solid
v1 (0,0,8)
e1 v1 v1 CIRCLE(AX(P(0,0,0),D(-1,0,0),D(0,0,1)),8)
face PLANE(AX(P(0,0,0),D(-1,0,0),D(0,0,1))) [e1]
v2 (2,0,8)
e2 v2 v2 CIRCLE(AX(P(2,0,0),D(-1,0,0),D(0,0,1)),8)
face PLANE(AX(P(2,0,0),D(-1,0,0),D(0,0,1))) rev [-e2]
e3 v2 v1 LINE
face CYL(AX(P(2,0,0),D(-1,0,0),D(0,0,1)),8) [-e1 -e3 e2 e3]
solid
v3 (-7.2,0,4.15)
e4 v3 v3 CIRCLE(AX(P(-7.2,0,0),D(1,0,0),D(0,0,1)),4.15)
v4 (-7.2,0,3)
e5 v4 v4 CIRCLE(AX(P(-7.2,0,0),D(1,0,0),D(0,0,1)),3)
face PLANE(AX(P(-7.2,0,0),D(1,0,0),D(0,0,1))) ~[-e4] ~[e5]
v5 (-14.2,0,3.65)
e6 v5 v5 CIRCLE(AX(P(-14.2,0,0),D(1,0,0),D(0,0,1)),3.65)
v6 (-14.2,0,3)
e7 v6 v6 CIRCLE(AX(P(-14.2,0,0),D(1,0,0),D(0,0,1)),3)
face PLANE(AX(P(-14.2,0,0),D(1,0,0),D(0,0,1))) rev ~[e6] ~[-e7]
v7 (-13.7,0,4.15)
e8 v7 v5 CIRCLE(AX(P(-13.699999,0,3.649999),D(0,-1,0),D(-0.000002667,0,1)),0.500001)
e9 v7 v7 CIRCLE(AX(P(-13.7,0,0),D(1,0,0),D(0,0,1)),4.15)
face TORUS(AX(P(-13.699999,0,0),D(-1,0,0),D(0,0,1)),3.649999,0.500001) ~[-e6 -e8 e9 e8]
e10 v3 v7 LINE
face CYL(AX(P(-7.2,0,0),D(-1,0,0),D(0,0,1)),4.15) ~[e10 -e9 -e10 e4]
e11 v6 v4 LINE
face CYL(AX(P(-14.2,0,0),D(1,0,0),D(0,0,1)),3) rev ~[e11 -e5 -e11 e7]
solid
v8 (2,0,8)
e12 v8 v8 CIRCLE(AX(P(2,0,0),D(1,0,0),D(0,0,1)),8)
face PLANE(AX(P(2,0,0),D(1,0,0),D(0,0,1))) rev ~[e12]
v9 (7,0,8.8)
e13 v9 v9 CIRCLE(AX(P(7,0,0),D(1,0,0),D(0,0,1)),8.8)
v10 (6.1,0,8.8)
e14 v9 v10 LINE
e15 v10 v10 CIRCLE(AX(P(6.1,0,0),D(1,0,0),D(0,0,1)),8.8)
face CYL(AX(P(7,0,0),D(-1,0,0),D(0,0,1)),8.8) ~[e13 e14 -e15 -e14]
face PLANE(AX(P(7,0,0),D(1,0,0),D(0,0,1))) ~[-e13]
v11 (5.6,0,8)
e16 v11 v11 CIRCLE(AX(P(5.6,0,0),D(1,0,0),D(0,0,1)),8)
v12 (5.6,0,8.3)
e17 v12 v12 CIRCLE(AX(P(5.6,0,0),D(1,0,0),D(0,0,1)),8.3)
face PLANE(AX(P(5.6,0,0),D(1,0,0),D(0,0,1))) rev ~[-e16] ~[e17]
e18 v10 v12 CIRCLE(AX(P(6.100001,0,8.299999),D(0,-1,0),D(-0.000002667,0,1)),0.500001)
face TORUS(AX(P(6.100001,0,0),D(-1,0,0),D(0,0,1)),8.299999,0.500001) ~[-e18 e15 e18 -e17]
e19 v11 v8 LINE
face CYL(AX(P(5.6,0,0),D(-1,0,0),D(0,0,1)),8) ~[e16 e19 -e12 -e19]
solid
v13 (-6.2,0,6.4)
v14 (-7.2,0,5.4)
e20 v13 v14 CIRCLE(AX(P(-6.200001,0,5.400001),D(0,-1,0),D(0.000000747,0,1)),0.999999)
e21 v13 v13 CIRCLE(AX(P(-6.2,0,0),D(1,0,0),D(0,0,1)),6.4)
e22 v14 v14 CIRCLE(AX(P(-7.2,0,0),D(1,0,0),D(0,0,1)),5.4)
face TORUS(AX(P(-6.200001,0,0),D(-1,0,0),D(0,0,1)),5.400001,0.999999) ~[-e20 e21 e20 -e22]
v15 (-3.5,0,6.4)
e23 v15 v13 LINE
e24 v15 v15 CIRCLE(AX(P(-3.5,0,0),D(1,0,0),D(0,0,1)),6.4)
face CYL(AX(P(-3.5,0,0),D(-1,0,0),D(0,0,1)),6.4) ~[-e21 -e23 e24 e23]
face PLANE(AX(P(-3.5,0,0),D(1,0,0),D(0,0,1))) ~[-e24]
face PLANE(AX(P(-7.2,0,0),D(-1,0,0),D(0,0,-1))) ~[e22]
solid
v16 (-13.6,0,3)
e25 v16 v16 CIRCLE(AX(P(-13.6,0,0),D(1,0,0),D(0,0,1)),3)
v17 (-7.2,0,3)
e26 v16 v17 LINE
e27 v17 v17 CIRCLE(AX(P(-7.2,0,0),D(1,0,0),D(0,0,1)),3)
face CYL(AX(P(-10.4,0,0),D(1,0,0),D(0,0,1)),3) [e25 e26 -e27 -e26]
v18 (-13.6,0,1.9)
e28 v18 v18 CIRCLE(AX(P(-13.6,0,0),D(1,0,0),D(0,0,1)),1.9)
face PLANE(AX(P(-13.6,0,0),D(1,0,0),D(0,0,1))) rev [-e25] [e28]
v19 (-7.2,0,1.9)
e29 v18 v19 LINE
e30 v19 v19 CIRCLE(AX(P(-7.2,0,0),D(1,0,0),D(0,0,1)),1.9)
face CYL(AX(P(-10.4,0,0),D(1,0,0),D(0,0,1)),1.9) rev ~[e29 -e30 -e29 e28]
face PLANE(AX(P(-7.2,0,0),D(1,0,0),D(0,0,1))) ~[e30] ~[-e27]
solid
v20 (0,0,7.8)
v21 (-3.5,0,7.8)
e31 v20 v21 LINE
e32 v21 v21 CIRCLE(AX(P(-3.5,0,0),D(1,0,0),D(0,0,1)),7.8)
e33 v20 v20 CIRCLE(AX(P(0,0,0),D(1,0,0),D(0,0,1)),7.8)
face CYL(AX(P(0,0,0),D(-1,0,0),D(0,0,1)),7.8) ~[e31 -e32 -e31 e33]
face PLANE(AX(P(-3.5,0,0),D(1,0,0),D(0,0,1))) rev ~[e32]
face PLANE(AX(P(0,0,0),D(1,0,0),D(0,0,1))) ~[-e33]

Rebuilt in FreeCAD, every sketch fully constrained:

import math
import FreeCAD as App
import Part
import Sketcher
Q = App.Units.Quantity

doc = App.newDocument("Part")
body = doc.addObject("PartDesign::Body", "Body")

# Sketch on XZ plane
sketch1 = body.newObject("Sketcher::SketchObject", "Sketch")
sketch1.AttachmentSupport = (doc.getObject("XZ_Plane"), [""])
sketch1.MapMode = "FlatFace"
sketch1.addGeometry([
    Part.LineSegment(App.Vector(-7.2, 3, 0), App.Vector(-7.2, 4.2, 0)),  # 0
    Part.LineSegment(App.Vector(-7.2, 4.2, 0), App.Vector(-13.7, 4.2, 0)),  # 1
    Part.ArcOfCircle(Part.Circle(App.Vector(-13.7, 3.6, 0), App.Vector(0, 0, 1), 0.5), math.radians(90), math.radians(180)),  # 2
    Part.LineSegment(App.Vector(-14.2, 3.6, 0), App.Vector(-14.2, 3, 0)),  # 3
    Part.LineSegment(App.Vector(-14.2, 3, 0), App.Vector(-7.2, 3, 0)),  # 4
], False)
sketch1.addConstraint([
    Sketcher.Constraint("Coincident", 0, 2, 1, 1),
    Sketcher.Constraint("Coincident", 1, 2, 2, 1),
    Sketcher.Constraint("Coincident", 2, 2, 3, 1),
    Sketcher.Constraint("Coincident", 3, 2, 4, 1),
    Sketcher.Constraint("Coincident", 4, 2, 0, 1),
    Sketcher.Constraint("Vertical", 0),
    Sketcher.Constraint("Horizontal", 1),
    Sketcher.Constraint("Vertical", 3),
    Sketcher.Constraint("Horizontal", 4),
    Sketcher.Constraint("Vertical", 2, 3, 1, 2),
    Sketcher.Constraint("Radius", 2, Q("0.500001 mm")),
    Sketcher.Constraint("DistanceX", 4, 1, 4, 2, Q("7 mm")),
    Sketcher.Constraint("DistanceY", -1, 1, 3, 2, Q("3 mm")),
    Sketcher.Constraint("DistanceY", 0, 1, 0, 2, Q("1.15 mm")),
    Sketcher.Constraint("DistanceY", 3, 2, 3, 1, Q("0.65 mm")),
    Sketcher.Constraint("DistanceX", 2, 3, -1, 1, Q("13.699999 mm")),
])
revolution = body.newObject("PartDesign::Revolution", "Revolution")
revolution.Profile = sketch1
revolution.ReferenceAxis = (sketch1, ["H_Axis"])
revolution.Angle = 360
body2 = doc.addObject("PartDesign::Body", "Body001")

# Sketch on XZ plane
sketch2 = body2.newObject("Sketcher::SketchObject", "Sketch001")
sketch2.AttachmentSupport = (doc.getObject("XZ_Plane001"), [""])
sketch2.MapMode = "FlatFace"
sketch2.addGeometry([
    Part.LineSegment(App.Vector(-3.5, 0, 0), App.Vector(-3.5, 6.4, 0)),  # 0
    Part.LineSegment(App.Vector(-3.5, 6.4, 0), App.Vector(-6.2, 6.4, 0)),  # 1
    Part.ArcOfCircle(Part.Circle(App.Vector(-6.2, 5.4, 0), App.Vector(0, 0, 1), 1), math.radians(90), math.radians(180)),  # 2
    Part.LineSegment(App.Vector(-7.2, 5.4, 0), App.Vector(-7.2, 0, 0)),  # 3
    Part.LineSegment(App.Vector(-7.2, 0, 0), App.Vector(-3.5, 0, 0)),  # 4
], False)
sketch2.addConstraint([
    Sketcher.Constraint("Coincident", 0, 2, 1, 1),
    Sketcher.Constraint("Tangent", 1, 2, 2, 1),
    Sketcher.Constraint("Tangent", 2, 2, 3, 1),
    Sketcher.Constraint("Coincident", 3, 2, 4, 1),
    Sketcher.Constraint("Coincident", 4, 2, 0, 1),
    Sketcher.Constraint("Vertical", 0),
    Sketcher.Constraint("Horizontal", 1),
    Sketcher.Constraint("Vertical", 3),
    Sketcher.Constraint("Horizontal", 4),
    Sketcher.Constraint("PointOnObject", 3, 2, -1),
    Sketcher.Constraint("Radius", 2, Q("0.999999 mm")),
    Sketcher.Constraint("DistanceX", 1, 2, 1, 1, Q("2.7 mm")),
    Sketcher.Constraint("DistanceY", 0, 1, 0, 2, Q("6.4 mm")),
    Sketcher.Constraint("DistanceX", 2, 3, -1, 1, Q("6.200001 mm")),
])
revolution2 = body2.newObject("PartDesign::Revolution", "Revolution001")
revolution2.Profile = sketch2
revolution2.ReferenceAxis = (sketch2, ["H_Axis"])
revolution2.Angle = 360
body3 = doc.addObject("PartDesign::Body", "Body002")

# Sketch on XZ plane
sketch3 = body3.newObject("Sketcher::SketchObject", "Sketch002")
sketch3.AttachmentSupport = (doc.getObject("XZ_Plane002"), [""])
sketch3.MapMode = "FlatFace"
sketch3.addGeometry([
    Part.LineSegment(App.Vector(0, 0, 0), App.Vector(0, 7.8, 0)),
    Part.LineSegment(App.Vector(0, 7.8, 0), App.Vector(-3.5, 7.8, 0)),
    Part.LineSegment(App.Vector(-3.5, 7.8, 0), App.Vector(-3.5, 0, 0)),
    Part.LineSegment(App.Vector(-3.5, 0, 0), App.Vector(0, 0, 0)),
], False)
sketch3.addConstraint([
    Sketcher.Constraint("Coincident", 0, 2, 1, 1),
    Sketcher.Constraint("Coincident", 1, 2, 2, 1),
    Sketcher.Constraint("Coincident", 2, 2, 3, 1),
    Sketcher.Constraint("Coincident", 3, 2, 0, 1),
    Sketcher.Constraint("Vertical", 0),
    Sketcher.Constraint("Horizontal", 1),
    Sketcher.Constraint("Vertical", 2),
    Sketcher.Constraint("Horizontal", 3),
    Sketcher.Constraint("Coincident", 3, 2, -1, 1),
    Sketcher.Constraint("DistanceX", 1, 2, 1, 1, Q("3.5 mm")),
    Sketcher.Constraint("DistanceY", 0, 1, 0, 2, Q("7.8 mm")),
])
revolution3 = body3.newObject("PartDesign::Revolution", "Revolution002")
revolution3.Profile = sketch3
revolution3.ReferenceAxis = (sketch3, ["H_Axis"])
revolution3.Angle = 360
body4 = doc.addObject("PartDesign::Body", "Body003")

# Sketch on XZ plane
sketch4 = body4.newObject("Sketcher::SketchObject", "Sketch003")
sketch4.AttachmentSupport = (doc.getObject("XZ_Plane003"), [""])
sketch4.MapMode = "FlatFace"
sketch4.addGeometry([
    Part.LineSegment(App.Vector(0, 8, 0), App.Vector(0, 0, 0)),
    Part.LineSegment(App.Vector(0, 0, 0), App.Vector(2, 0, 0)),
    Part.LineSegment(App.Vector(2, 0, 0), App.Vector(2, 8, 0)),
    Part.LineSegment(App.Vector(2, 8, 0), App.Vector(0, 8, 0)),
], False)
sketch4.addConstraint([
    Sketcher.Constraint("Coincident", 0, 2, 1, 1),
    Sketcher.Constraint("Coincident", 1, 2, 2, 1),
    Sketcher.Constraint("Coincident", 2, 2, 3, 1),
    Sketcher.Constraint("Coincident", 3, 2, 0, 1),
    Sketcher.Constraint("Vertical", 0),
    Sketcher.Constraint("Horizontal", 1),
    Sketcher.Constraint("Vertical", 2),
    Sketcher.Constraint("Horizontal", 3),
    Sketcher.Constraint("Coincident", 0, 2, -1, 1),
    Sketcher.Constraint("DistanceX", 1, 1, 1, 2, Q("2 mm")),
    Sketcher.Constraint("DistanceY", 0, 2, 0, 1, Q("8 mm")),
])
revolution4 = body4.newObject("PartDesign::Revolution", "Revolution003")
revolution4.Profile = sketch4
revolution4.ReferenceAxis = (sketch4, ["H_Axis"])
revolution4.Angle = 360
body5 = doc.addObject("PartDesign::Body", "Body004")

# Sketch on XZ plane
sketch5 = body5.newObject("Sketcher::SketchObject", "Sketch004")
sketch5.AttachmentSupport = (doc.getObject("XZ_Plane004"), [""])
sketch5.MapMode = "FlatFace"
sketch5.addGeometry([
    Part.LineSegment(App.Vector(-13.6, 3, 0), App.Vector(-13.6, 1.9, 0)),
    Part.LineSegment(App.Vector(-13.6, 1.9, 0), App.Vector(-7.2, 1.9, 0)),
    Part.LineSegment(App.Vector(-7.2, 1.9, 0), App.Vector(-7.2, 3, 0)),
    Part.LineSegment(App.Vector(-7.2, 3, 0), App.Vector(-13.6, 3, 0)),
], False)
sketch5.addConstraint([
    Sketcher.Constraint("Coincident", 0, 2, 1, 1),
    Sketcher.Constraint("Coincident", 1, 2, 2, 1),
    Sketcher.Constraint("Coincident", 2, 2, 3, 1),
    Sketcher.Constraint("Coincident", 3, 2, 0, 1),
    Sketcher.Constraint("Vertical", 0),
    Sketcher.Constraint("Horizontal", 1),
    Sketcher.Constraint("Vertical", 2),
    Sketcher.Constraint("Horizontal", 3),
    Sketcher.Constraint("DistanceX", 1, 1, 1, 2, Q("6.4 mm")),
    Sketcher.Constraint("DistanceY", 0, 2, 0, 1, Q("1.1 mm")),
    Sketcher.Constraint("DistanceY", -1, 1, 2, 2, Q("3 mm")),
    Sketcher.Constraint("DistanceX", 0, 2, -1, 1, Q("13.6 mm")),
])
revolution5 = body5.newObject("PartDesign::Revolution", "Revolution004")
revolution5.Profile = sketch5
revolution5.ReferenceAxis = (sketch5, ["H_Axis"])
revolution5.Angle = 360
body6 = doc.addObject("PartDesign::Body", "Body005")

# Sketch on XZ plane
sketch6 = body6.newObject("Sketcher::SketchObject", "Sketch005")
sketch6.AttachmentSupport = (doc.getObject("XZ_Plane005"), [""])
sketch6.MapMode = "FlatFace"
sketch6.addGeometry([
    Part.LineSegment(App.Vector(2, 8, 0), App.Vector(2, 0, 0)),  # 0
    Part.LineSegment(App.Vector(2, 0, 0), App.Vector(7, 0, 0)),  # 1
    Part.LineSegment(App.Vector(7, 0, 0), App.Vector(7, 8.8, 0)),  # 2
    Part.LineSegment(App.Vector(7, 8.8, 0), App.Vector(6.1, 8.8, 0)),  # 3
    Part.ArcOfCircle(Part.Circle(App.Vector(6.1, 8.3, 0), App.Vector(0, 0, 1), 0.5), math.radians(90), math.radians(180)),  # 4
    Part.LineSegment(App.Vector(5.6, 8.3, 0), App.Vector(5.6, 8, 0)),  # 5
    Part.LineSegment(App.Vector(5.6, 8, 0), App.Vector(2, 8, 0)),  # 6
], False)
sketch6.addConstraint([
    Sketcher.Constraint("Coincident", 0, 2, 1, 1),
    Sketcher.Constraint("Coincident", 1, 2, 2, 1),
    Sketcher.Constraint("Coincident", 2, 2, 3, 1),
    Sketcher.Constraint("Coincident", 3, 2, 4, 1),
    Sketcher.Constraint("Coincident", 4, 2, 5, 1),
    Sketcher.Constraint("Coincident", 5, 2, 6, 1),
    Sketcher.Constraint("Coincident", 6, 2, 0, 1),
    Sketcher.Constraint("Vertical", 0),
    Sketcher.Constraint("Horizontal", 1),
    Sketcher.Constraint("Vertical", 2),
    Sketcher.Constraint("Horizontal", 3),
    Sketcher.Constraint("Vertical", 5),
    Sketcher.Constraint("Horizontal", 6),
    Sketcher.Constraint("PointOnObject", 0, 2, -1),
    Sketcher.Constraint("Vertical", 4, 3, 3, 2),
    Sketcher.Constraint("Radius", 4, Q("0.500001 mm")),
    Sketcher.Constraint("DistanceX", 1, 1, 1, 2, Q("5 mm")),
    Sketcher.Constraint("DistanceY", 0, 2, 0, 1, Q("8 mm")),
    Sketcher.Constraint("DistanceX", 3, 2, 3, 1, Q("0.9 mm")),
    Sketcher.Constraint("DistanceY", 2, 1, 2, 2, Q("8.8 mm")),
    Sketcher.Constraint("DistanceY", 5, 2, 5, 1, Q("0.3 mm")),
    Sketcher.Constraint("DistanceX", -1, 1, 0, 2, Q("2 mm")),
])
revolution6 = body6.newObject("PartDesign::Revolution", "Revolution005")
revolution6.Profile = sketch6
revolution6.ReferenceAxis = (sketch6, ["H_Axis"])
revolution6.Angle = 360

doc.recompute()
